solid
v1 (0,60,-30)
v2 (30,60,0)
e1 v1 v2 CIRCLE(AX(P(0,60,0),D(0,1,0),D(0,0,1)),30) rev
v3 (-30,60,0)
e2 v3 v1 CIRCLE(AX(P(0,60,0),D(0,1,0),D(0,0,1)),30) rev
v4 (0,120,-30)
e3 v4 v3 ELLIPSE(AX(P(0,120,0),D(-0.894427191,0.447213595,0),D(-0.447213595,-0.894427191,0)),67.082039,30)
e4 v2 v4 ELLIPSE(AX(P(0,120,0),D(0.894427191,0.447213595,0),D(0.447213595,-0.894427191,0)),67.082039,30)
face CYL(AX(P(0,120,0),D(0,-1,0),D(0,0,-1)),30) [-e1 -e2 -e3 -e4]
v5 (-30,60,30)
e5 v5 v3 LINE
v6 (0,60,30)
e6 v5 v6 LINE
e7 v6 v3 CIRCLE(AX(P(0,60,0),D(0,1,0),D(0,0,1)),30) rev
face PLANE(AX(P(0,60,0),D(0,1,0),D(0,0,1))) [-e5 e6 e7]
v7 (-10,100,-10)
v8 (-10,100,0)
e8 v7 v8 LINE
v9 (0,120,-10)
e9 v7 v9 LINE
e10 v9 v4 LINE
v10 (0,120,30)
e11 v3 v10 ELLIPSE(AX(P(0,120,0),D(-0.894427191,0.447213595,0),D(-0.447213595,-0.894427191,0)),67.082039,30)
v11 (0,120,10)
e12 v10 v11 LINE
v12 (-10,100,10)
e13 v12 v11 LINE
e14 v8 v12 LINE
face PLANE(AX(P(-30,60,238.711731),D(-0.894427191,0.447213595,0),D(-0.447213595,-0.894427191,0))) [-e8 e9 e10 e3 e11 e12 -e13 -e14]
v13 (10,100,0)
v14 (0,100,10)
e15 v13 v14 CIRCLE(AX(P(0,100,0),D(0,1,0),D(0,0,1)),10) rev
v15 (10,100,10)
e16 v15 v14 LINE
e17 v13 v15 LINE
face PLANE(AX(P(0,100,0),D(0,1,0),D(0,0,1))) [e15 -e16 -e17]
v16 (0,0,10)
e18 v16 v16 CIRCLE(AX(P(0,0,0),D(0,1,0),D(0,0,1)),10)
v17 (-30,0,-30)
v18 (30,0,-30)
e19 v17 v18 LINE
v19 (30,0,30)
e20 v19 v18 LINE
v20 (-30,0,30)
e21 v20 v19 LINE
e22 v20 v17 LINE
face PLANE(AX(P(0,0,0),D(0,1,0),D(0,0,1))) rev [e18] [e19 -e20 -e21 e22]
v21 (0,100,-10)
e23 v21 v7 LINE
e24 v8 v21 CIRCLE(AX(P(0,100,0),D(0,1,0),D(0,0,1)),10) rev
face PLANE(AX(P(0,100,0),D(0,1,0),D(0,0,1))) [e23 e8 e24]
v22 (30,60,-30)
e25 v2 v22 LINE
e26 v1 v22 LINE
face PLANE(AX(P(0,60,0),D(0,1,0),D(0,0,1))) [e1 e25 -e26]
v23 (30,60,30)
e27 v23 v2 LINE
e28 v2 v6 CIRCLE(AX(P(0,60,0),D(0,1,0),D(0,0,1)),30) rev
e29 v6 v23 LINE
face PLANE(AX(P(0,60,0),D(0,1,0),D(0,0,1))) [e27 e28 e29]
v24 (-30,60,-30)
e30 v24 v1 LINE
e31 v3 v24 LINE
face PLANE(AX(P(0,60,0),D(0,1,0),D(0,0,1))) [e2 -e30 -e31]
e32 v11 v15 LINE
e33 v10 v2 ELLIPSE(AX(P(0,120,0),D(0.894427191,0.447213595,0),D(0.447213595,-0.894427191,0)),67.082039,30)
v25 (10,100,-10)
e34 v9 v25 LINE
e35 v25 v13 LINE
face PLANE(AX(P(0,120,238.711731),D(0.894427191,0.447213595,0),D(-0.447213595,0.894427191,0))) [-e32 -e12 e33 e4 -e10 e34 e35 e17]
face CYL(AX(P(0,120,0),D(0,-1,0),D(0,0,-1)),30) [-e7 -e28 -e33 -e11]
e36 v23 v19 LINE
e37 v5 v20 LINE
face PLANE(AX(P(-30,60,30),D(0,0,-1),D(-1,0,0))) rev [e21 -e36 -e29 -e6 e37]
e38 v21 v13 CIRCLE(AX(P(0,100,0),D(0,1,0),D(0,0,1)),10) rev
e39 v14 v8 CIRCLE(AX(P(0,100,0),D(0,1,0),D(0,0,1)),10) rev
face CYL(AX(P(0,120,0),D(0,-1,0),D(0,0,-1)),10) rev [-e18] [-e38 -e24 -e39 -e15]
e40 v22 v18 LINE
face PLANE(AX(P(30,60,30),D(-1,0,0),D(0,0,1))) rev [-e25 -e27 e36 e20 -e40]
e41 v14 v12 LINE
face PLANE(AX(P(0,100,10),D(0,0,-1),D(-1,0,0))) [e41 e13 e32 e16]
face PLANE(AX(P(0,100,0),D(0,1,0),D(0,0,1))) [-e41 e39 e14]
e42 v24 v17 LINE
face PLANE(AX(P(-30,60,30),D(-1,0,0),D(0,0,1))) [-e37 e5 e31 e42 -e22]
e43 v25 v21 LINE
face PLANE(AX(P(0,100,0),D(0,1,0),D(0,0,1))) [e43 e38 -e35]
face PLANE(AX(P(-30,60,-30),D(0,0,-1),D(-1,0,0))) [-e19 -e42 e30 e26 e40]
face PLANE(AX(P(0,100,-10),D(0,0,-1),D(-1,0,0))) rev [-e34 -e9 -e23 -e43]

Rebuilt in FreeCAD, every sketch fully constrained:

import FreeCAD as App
import Part
import Sketcher

V = App.Vector
Q = App.Units.Quantity


def add_polygon(sketch, points):
    """Adds a closed chain of lines whose ends are joined by coincident constraints."""
    first, n = sketch.GeometryCount, len(points)
    for a, b in zip(points, points[1:] + points[:1]):
        sketch.addGeometry(Part.LineSegment(App.Vector(*a, 0), App.Vector(*b, 0)), False)
    for i in range(n):
        sketch.addConstraint(Sketcher.Constraint("Coincident", first + i, 2, first + (i + 1) % n, 1))

doc = App.newDocument("Part")
body = doc.addObject("PartDesign::Body", "Body")

sketch1 = body.newObject("Sketcher::SketchObject", "Sketch")
sketch1.AttachmentSupport = (doc.getObject("XZ_Plane"), [""])
sketch1.MapMode = "FlatFace"
add_polygon(sketch1, [(-30, -30), (-30, 30), (30, 30), (30, -30)])
sketch1.addConstraint(Sketcher.Constraint("Vertical", 0))
sketch1.addConstraint(Sketcher.Constraint("Horizontal", 1))
sketch1.addConstraint(Sketcher.Constraint("Vertical", 2))
sketch1.addConstraint(Sketcher.Constraint("Horizontal", 3))
sketch1.addConstraint(Sketcher.Constraint("Symmetric", 0, 2, 2, 2, -1, 1))
sketch1.addConstraint(Sketcher.Constraint("Equal", 3, 0))
sketch1.addConstraint(Sketcher.Constraint("DistanceX", 1, 1, 1, 2, Q("60 mm")))
pad1 = body.newObject("PartDesign::Pad", "Pad")
pad1.Profile = sketch1
pad1.Length = 60
pad1.Reversed = True

sketch2 = body.newObject("Sketcher::SketchObject", "Sketch001")
sketch2.AttachmentSupport = (doc.getObject("XZ_Plane"), [""])
sketch2.MapMode = "FlatFace"
sketch2.addGeometry(Part.Circle(V(0, 0, 0), V(0, 0, 1), 30), False)
sketch2.addConstraint(Sketcher.Constraint("Coincident", 0, 3, -1, 1))
sketch2.addConstraint(Sketcher.Constraint("Diameter", 0, Q("60 mm")))
pad2 = body.newObject("PartDesign::Pad", "Pad001")
pad2.Profile = sketch2
pad2.Length = 120
pad2.Reversed = True

sketch3 = body.newObject("Sketcher::SketchObject", "Sketch002")
sketch3.AttachmentSupport = (doc.getObject("XZ_Plane"), [""])
sketch3.MapMode = "FlatFace"
sketch3.AttachmentOffset = App.Placement(V(0, 0, -120), App.Rotation())
add_polygon(sketch3, [(-10, -10), (-10, 10), (10, 10), (10, -10)])
sketch3.addConstraint(Sketcher.Constraint("Vertical", 0))
sketch3.addConstraint(Sketcher.Constraint("Horizontal", 1))
sketch3.addConstraint(Sketcher.Constraint("Vertical", 2))
sketch3.addConstraint(Sketcher.Constraint("Horizontal", 3))
sketch3.addConstraint(Sketcher.Constraint("Symmetric", 0, 2, 2, 2, -1, 1))
sketch3.addConstraint(Sketcher.Constraint("Equal", 3, 0))
sketch3.addConstraint(Sketcher.Constraint("DistanceX", 1, 1, 1, 2, Q("20 mm")))
pocket1 = body.newObject("PartDesign::Pocket", "Pocket")
pocket1.Profile = sketch3
pocket1.Length = 20
pocket1.Reversed = True

sketch4 = body.newObject("Sketcher::SketchObject", "Sketch003")
sketch4.AttachmentSupport = (doc.getObject("XZ_Plane"), [""])
sketch4.MapMode = "FlatFace"
sketch4.addGeometry(Part.Circle(V(0, 0, 0), V(0, 0, 1), 10), False)
sketch4.addConstraint(Sketcher.Constraint("Coincident", 0, 3, -1, 1))
sketch4.addConstraint(Sketcher.Constraint("Diameter", 0, Q("20 mm")))
pocket2 = body.newObject("PartDesign::Pocket", "Pocket001")
pocket2.Profile = sketch4
pocket2.Type = "ThroughAll"

sketch5 = body.newObject("Sketcher::SketchObject", "Sketch004")
sketch5.AttachmentSupport = (doc.getObject("XY_Plane"), [""])
sketch5.MapMode = "FlatFace"
sketch5.AttachmentOffset = App.Placement(V(0, 0, 30), App.Rotation())
add_polygon(sketch5, [(-110.3668, -100.7336), (0, 120), (110.3668, -100.7336), (110.3668, 258.677655), (-110.3668, 258.677655)])
sketch5.addConstraint(Sketcher.Constraint("Vertical", 2))
sketch5.addConstraint(Sketcher.Constraint("Horizontal", 3))
sketch5.addConstraint(Sketcher.Constraint("Vertical", 4))
sketch5.addConstraint(Sketcher.Constraint("Symmetric", 1, 2, 4, 2, -2))
sketch5.addConstraint(Sketcher.Constraint("PointOnObject", 0, 2, -2))
sketch5.addConstraint(Sketcher.Constraint("DistanceY", -1, 1, 0, 2, Q("120 mm")))
sketch5.addConstraint(Sketcher.Constraint("DistanceX", 3, 2, 3, 1, Q("220.7336 mm")))
sketch5.addConstraint(Sketcher.Constraint("DistanceY", 1, 2, -1, 1, Q("100.7336 mm")))
sketch5.addConstraint(Sketcher.Constraint("DistanceY", 2, 1, 2, 2, Q("359.411255 mm")))
pocket3 = body.newObject("PartDesign::Pocket", "Pocket002")
pocket3.Profile = sketch5
pocket3.Type = "ThroughAll"
pocket3.Midplane = True

doc.recompute()
